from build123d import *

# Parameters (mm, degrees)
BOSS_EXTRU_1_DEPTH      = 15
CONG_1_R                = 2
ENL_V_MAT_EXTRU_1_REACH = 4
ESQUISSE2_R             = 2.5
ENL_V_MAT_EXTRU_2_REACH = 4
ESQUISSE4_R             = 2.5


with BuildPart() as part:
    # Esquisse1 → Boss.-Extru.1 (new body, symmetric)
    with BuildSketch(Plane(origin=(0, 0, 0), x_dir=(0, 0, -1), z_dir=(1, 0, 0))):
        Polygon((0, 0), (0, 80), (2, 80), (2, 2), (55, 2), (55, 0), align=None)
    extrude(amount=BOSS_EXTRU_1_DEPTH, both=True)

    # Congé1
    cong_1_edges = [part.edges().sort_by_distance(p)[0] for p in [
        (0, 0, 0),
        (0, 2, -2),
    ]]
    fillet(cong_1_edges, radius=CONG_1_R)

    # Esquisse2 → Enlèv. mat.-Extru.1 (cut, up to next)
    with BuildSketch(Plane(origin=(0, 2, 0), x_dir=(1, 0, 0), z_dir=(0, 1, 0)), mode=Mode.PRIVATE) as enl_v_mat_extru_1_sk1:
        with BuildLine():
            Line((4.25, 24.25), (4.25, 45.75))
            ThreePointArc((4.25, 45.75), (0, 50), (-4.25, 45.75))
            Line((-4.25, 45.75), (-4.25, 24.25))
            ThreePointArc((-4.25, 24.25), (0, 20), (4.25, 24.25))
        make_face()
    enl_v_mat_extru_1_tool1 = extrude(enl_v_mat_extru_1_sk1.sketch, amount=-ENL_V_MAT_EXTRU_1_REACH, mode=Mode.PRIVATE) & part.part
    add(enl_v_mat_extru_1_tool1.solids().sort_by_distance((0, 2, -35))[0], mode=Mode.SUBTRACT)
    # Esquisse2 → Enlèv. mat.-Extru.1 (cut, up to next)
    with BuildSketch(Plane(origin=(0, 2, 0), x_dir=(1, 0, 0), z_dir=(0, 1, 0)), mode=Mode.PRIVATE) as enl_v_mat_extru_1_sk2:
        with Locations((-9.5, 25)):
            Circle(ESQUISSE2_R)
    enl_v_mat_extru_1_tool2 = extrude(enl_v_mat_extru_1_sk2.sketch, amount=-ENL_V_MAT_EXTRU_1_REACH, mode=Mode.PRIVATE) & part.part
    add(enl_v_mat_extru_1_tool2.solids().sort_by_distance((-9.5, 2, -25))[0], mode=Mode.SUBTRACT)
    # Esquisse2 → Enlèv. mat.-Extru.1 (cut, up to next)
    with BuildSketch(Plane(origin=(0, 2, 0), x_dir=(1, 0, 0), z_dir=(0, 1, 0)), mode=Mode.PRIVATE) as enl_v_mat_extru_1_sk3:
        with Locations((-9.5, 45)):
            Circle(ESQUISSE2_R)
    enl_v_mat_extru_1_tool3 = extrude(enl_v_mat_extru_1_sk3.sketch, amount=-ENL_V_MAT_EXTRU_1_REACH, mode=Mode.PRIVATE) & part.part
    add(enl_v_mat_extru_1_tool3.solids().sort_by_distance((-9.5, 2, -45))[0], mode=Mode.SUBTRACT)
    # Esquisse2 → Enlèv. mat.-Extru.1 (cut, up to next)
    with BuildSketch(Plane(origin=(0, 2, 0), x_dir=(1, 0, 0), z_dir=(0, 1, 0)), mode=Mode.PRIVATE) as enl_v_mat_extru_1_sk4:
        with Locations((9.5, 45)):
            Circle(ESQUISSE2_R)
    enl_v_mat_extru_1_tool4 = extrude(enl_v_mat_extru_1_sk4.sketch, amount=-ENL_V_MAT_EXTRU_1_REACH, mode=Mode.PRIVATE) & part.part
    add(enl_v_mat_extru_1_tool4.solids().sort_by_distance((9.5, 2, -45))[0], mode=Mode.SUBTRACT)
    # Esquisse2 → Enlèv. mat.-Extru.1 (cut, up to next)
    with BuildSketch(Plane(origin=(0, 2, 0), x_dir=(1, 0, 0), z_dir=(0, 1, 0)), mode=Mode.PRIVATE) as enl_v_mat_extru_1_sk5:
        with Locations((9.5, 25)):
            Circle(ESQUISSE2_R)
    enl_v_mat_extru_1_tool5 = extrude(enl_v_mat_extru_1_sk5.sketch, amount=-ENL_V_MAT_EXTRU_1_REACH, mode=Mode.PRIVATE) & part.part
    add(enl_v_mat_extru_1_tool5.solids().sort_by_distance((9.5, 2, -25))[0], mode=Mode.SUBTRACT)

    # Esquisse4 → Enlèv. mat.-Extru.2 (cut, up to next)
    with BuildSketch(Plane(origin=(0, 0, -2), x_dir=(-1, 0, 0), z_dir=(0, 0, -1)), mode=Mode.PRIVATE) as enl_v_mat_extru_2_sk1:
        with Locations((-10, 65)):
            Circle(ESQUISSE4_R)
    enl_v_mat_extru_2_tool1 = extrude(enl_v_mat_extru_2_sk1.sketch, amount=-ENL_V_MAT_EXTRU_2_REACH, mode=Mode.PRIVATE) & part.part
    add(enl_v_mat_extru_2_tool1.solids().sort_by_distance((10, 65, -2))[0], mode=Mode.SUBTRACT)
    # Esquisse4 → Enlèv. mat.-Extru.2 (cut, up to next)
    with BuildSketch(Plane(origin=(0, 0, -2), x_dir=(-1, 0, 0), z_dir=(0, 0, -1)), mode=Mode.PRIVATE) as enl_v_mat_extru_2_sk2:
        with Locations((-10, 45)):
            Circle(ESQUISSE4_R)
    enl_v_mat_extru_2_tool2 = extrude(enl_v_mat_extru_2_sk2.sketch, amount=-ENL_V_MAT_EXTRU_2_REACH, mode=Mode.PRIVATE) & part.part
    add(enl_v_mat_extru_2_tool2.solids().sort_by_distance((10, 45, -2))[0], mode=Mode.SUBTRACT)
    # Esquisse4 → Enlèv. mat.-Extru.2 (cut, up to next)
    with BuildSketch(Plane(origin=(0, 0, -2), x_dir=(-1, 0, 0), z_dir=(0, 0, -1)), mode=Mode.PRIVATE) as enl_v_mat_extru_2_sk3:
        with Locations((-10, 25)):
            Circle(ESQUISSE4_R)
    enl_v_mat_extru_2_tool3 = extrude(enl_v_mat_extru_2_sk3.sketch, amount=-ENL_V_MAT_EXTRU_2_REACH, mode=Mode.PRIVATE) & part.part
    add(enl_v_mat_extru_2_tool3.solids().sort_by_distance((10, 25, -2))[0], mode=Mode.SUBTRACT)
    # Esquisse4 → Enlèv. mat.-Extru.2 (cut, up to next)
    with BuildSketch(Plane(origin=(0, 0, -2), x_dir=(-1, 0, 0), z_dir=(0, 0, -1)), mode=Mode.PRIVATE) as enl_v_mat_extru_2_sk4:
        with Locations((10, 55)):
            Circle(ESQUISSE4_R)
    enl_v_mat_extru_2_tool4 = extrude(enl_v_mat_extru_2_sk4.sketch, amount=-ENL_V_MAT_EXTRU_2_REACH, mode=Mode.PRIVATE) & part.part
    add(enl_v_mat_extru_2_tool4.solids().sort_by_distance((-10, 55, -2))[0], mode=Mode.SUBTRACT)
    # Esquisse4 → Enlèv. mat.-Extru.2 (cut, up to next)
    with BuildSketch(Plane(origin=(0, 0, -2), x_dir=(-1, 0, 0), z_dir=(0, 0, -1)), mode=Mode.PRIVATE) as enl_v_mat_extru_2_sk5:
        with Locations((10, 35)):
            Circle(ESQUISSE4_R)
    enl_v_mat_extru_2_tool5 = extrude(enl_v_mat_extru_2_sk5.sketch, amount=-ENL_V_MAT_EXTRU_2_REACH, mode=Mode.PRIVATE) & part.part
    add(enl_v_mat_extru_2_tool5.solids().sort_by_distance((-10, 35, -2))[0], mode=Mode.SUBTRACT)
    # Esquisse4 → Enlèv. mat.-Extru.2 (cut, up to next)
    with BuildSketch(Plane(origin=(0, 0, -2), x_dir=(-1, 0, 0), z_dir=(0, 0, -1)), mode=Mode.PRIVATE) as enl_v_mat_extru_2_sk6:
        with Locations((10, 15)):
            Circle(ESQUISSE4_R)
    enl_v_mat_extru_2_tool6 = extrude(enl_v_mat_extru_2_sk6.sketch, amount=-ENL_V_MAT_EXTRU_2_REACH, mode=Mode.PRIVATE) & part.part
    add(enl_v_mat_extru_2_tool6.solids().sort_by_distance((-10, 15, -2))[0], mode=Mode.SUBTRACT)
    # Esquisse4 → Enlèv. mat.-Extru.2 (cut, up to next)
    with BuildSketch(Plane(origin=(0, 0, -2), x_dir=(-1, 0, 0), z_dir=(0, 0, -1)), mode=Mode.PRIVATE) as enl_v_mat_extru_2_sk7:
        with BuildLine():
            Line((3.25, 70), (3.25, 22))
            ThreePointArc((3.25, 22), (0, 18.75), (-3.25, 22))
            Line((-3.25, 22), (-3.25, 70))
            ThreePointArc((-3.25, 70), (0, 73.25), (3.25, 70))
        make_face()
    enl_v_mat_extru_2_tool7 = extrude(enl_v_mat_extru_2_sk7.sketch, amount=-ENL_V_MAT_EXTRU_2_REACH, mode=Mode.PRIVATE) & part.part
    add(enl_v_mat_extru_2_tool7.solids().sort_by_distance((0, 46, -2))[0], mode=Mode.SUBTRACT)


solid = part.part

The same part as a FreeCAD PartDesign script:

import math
import FreeCAD as App
import Part
import Sketcher


def edges_at(feature, points):
    """Names of the edges that pass closest to the given points."""
    edges = feature.Shape.Edges
    near = lambda p: min(range(len(edges)), key=lambda i: edges[i].distToShape(Part.Vertex(*p))[0])
    return sorted({f"Edge{near(p) + 1}" for p in points})

doc = App.newDocument("Part")
params = doc.addObject("Spreadsheet::Sheet", "Params")
for row, (alias, value) in enumerate([
    ("sketch1_width", "80 mm"),
    ("sketch1_width2", "2 mm"),
    ("sketch1_height", "55 mm"),
    ("pad1_length", "30 mm"),
    ("fillet_radius", "2 mm"),
    ("sketch2_radius", "4.25 mm"),
    ("sketch2_height", "21.5 mm"),
    ("sketch3_diameter", "5 mm"),
    ("sketch4_diameter", "5 mm"),
    ("sketch5_diameter", "5 mm"),
    ("sketch6_diameter", "5 mm"),
    ("sketch7_diameter", "5 mm"),
    ("sketch8_diameter", "5 mm"),
    ("sketch9_diameter", "5 mm"),
    ("sketch10_diameter", "5 mm"),
    ("sketch11_diameter", "5 mm"),
    ("sketch12_diameter", "5 mm"),
    ("sketch13_height", "48 mm"),
    ("sketch13_radius", "3.25 mm"),
], start=1):
    params.set(f"A{row}", alias)
    params.set(f"B{row}", "=" + value)
    params.setAlias(f"B{row}", alias)

body = doc.addObject("PartDesign::Body", "Body")

# Sketch on YZ plane
sketch1 = doc.addObject("Sketcher::SketchObject", "Sketch")
body.addObject(sketch1)
sketch1.AttachmentSupport = (doc.YZ_Plane, [""])
sketch1.MapMode = "FlatFace"
sketch1.addGeometry([
    Part.LineSegment(App.Vector(80, 0, 0), App.Vector(0, 0, 0)),  # 0
    Part.LineSegment(App.Vector(0, 0, 0), App.Vector(0, -55, 0)),  # 1
    Part.LineSegment(App.Vector(0, -55, 0), App.Vector(2, -55, 0)),  # 2
    Part.LineSegment(App.Vector(2, -55, 0), App.Vector(2, -2, 0)),  # 3
    Part.LineSegment(App.Vector(2, -2, 0), App.Vector(80, -2, 0)),  # 4
    Part.LineSegment(App.Vector(80, -2, 0), App.Vector(80, 0, 0)),  # 5
], False)
sketch1.addConstraint([
    Sketcher.Constraint("Coincident", 0, 2, 1, 1),
    Sketcher.Constraint("Coincident", 1, 2, 2, 1),
    Sketcher.Constraint("Coincident", 2, 2, 3, 1),
    Sketcher.Constraint("Coincident", 3, 2, 4, 1),
    Sketcher.Constraint("Coincident", 4, 2, 5, 1),
    Sketcher.Constraint("Coincident", 5, 2, 0, 1),
    Sketcher.Constraint("Horizontal", 0),
    Sketcher.Constraint("Vertical", 1),
    Sketcher.Constraint("Horizontal", 2),
    Sketcher.Constraint("Vertical", 3),
    Sketcher.Constraint("Horizontal", 4),
    Sketcher.Constraint("Vertical", 5),
    Sketcher.Constraint("Coincident", 0, 2, -1, 1),
    Sketcher.Constraint("Equal", 2, 5),
    Sketcher.Constraint("DistanceX", 0, 2, 0, 1, 80.0),
    Sketcher.Constraint("DistanceX", 2, 1, 2, 2, 2.0),
    Sketcher.Constraint("DistanceY", 1, 2, 1, 1, 55.0),
])
sketch1.setExpression("Constraints[14]", "Params.sketch1_width")
sketch1.setExpression("Constraints[15]", "Params.sketch1_width2")
sketch1.setExpression("Constraints[16]", "Params.sketch1_height")
pad1 = doc.addObject("PartDesign::Pad", "Pad")
body.addObject(pad1)
pad1.Profile = sketch1
pad1.setExpression("Length", "Params.pad1_length")
pad1.Midplane = True
doc.recompute()

fillet = doc.addObject("PartDesign::Fillet", "Fillet")
body.addObject(fillet)
fillet.Base = (pad1, edges_at(pad1, [(0, 0, 0), (0, 2, -2)]))
fillet.setExpression("Radius", "Params.fillet_radius")

# Sketch on XZ plane
sketch2 = doc.addObject("Sketcher::SketchObject", "Sketch001")
body.addObject(sketch2)
sketch2.AttachmentSupport = (doc.XZ_Plane, [""])
sketch2.MapMode = "FlatFace"
sketch2.AttachmentOffset = App.Placement(App.Vector(0, 0, -2), App.Rotation())
sketch2.addGeometry([
    Part.LineSegment(App.Vector(4.25, -24.25, 0), App.Vector(4.25, -45.75, 0)),
    Part.ArcOfCircle(Part.Circle(App.Vector(0, -45.75, 0), App.Vector(0, 0, 1), 4.25), math.radians(180), math.radians(360)),
    Part.LineSegment(App.Vector(-4.25, -45.75, 0), App.Vector(-4.25, -24.25, 0)),
    Part.ArcOfCircle(Part.Circle(App.Vector(0, -24.25, 0), App.Vector(0, 0, 1), 4.25), math.radians(0), math.radians(180)),
], False)
sketch2.addConstraint([
    Sketcher.Constraint("Tangent", 0, 2, 1, 2),
    Sketcher.Constraint("Tangent", 1, 1, 2, 1),
    Sketcher.Constraint("Tangent", 2, 2, 3, 2),
    Sketcher.Constraint("Tangent", 3, 1, 0, 1),
    Sketcher.Constraint("Vertical", 0),
    Sketcher.Constraint("Vertical", 2),
    Sketcher.Constraint("PointOnObject", 1, 3, -2),
    Sketcher.Constraint("Radius", 1, 4.25),
    Sketcher.Constraint("DistanceY", 0, 2, 0, 1, 21.5),
    Sketcher.Constraint("DistanceY", 1, 3, -1, 1, 45.75),
])
sketch2.setExpression("Constraints[7]", "Params.sketch2_radius")
sketch2.setExpression("Constraints[8]", "Params.sketch2_height")
pocket1 = doc.addObject("PartDesign::Pocket", "Pocket")
body.addObject(pocket1)
pocket1.Profile = sketch2
pocket1.Type = "UpToFirst"
pocket1.Reversed = True

# Sketch on XZ plane
sketch3 = doc.addObject("Sketcher::SketchObject", "Sketch002")
body.addObject(sketch3)
sketch3.AttachmentSupport = (doc.XZ_Plane, [""])
sketch3.MapMode = "FlatFace"
sketch3.AttachmentOffset = App.Placement(App.Vector(0, 0, -2), App.Rotation())
sketch3.addGeometry(Part.Circle(App.Vector(-9.5, -25, 0), App.Vector(0, 0, 1), 2.5), False)
sketch3.addConstraint([
    Sketcher.Constraint("Diameter", 0, 5.0),
    Sketcher.Constraint("DistanceY", 0, 3, -1, 1, 25.0),
    Sketcher.Constraint("DistanceX", 0, 3, -1, 1, 9.5),
])
sketch3.setExpression("Constraints[0]", "Params.sketch3_diameter")
pocket2 = doc.addObject("PartDesign::Pocket", "Pocket001")
body.addObject(pocket2)
pocket2.Profile = sketch3
pocket2.Type = "UpToFirst"
pocket2.Reversed = True

# Sketch on XZ plane
sketch4 = doc.addObject("Sketcher::SketchObject", "Sketch003")
body.addObject(sketch4)
sketch4.AttachmentSupport = (doc.XZ_Plane, [""])
sketch4.MapMode = "FlatFace"
sketch4.AttachmentOffset = App.Placement(App.Vector(0, 0, -2), App.Rotation())
sketch4.addGeometry(Part.Circle(App.Vector(-9.5, -45, 0), App.Vector(0, 0, 1), 2.5), False)
sketch4.addConstraint([
    Sketcher.Constraint("Diameter", 0, 5.0),
    Sketcher.Constraint("DistanceY", 0, 3, -1, 1, 45.0),
    Sketcher.Constraint("DistanceX", 0, 3, -1, 1, 9.5),
])
sketch4.setExpression("Constraints[0]", "Params.sketch4_diameter")
pocket3 = doc.addObject("PartDesign::Pocket", "Pocket002")
body.addObject(pocket3)
pocket3.Profile = sketch4
pocket3.Type = "UpToFirst"
pocket3.Reversed = True

# Sketch on XZ plane
sketch5 = doc.addObject("Sketcher::SketchObject", "Sketch004")
body.addObject(sketch5)
sketch5.AttachmentSupport = (doc.XZ_Plane, [""])
sketch5.MapMode = "FlatFace"
sketch5.AttachmentOffset = App.Placement(App.Vector(0, 0, -2), App.Rotation())
sketch5.addGeometry(Part.Circle(App.Vector(9.5, -45, 0), App.Vector(0, 0, 1), 2.5), False)
sketch5.addConstraint([
    Sketcher.Constraint("Diameter", 0, 5.0),
    Sketcher.Constraint("DistanceY", 0, 3, -1, 1, 45.0),
    Sketcher.Constraint("DistanceX", -1, 1, 0, 3, 9.5),
])
sketch5.setExpression("Constraints[0]", "Params.sketch5_diameter")
pocket4 = doc.addObject("PartDesign::Pocket", "Pocket003")
body.addObject(pocket4)
pocket4.Profile = sketch5
pocket4.Type = "UpToFirst"
pocket4.Reversed = True

# Sketch on XZ plane
sketch6 = doc.addObject("Sketcher::SketchObject", "Sketch005")
body.addObject(sketch6)
sketch6.AttachmentSupport = (doc.XZ_Plane, [""])
sketch6.MapMode = "FlatFace"
sketch6.AttachmentOffset = App.Placement(App.Vector(0, 0, -2), App.Rotation())
sketch6.addGeometry(Part.Circle(App.Vector(9.5, -25, 0), App.Vector(0, 0, 1), 2.5), False)
sketch6.addConstraint([
    Sketcher.Constraint("Diameter", 0, 5.0),
    Sketcher.Constraint("DistanceY", 0, 3, -1, 1, 25.0),
    Sketcher.Constraint("DistanceX", -1, 1, 0, 3, 9.5),
])
sketch6.setExpression("Constraints[0]", "Params.sketch6_diameter")
pocket5 = doc.addObject("PartDesign::Pocket", "Pocket004")
body.addObject(pocket5)
pocket5.Profile = sketch6
pocket5.Type = "UpToFirst"
pocket5.Reversed = True

# Sketch on XY plane
sketch7 = doc.addObject("Sketcher::SketchObject", "Sketch006")
body.addObject(sketch7)
sketch7.AttachmentSupport = (doc.XY_Plane, [""])
sketch7.MapMode = "FlatFace"
sketch7.AttachmentOffset = App.Placement(App.Vector(0, 0, -2), App.Rotation())
sketch7.addGeometry(Part.Circle(App.Vector(10, 65, 0), App.Vector(0, 0, 1), 2.5), False)
sketch7.addConstraint([
    Sketcher.Constraint("Diameter", 0, 5.0),
    Sketcher.Constraint("DistanceX", -1, 1, 0, 3, 10.0),
    Sketcher.Constraint("DistanceY", -1, 1, 0, 3, 65.0),
])
sketch7.setExpression("Constraints[0]", "Params.sketch7_diameter")
pocket6 = doc.addObject("PartDesign::Pocket", "Pocket005")
body.addObject(pocket6)
pocket6.Profile = sketch7
pocket6.Type = "UpToFirst"
pocket6.Reversed = True

# Sketch on XY plane
sketch8 = doc.addObject("Sketcher::SketchObject", "Sketch007")
body.addObject(sketch8)
sketch8.AttachmentSupport = (doc.XY_Plane, [""])
sketch8.MapMode = "FlatFace"
sketch8.AttachmentOffset = App.Placement(App.Vector(0, 0, -2), App.Rotation())
sketch8.addGeometry(Part.Circle(App.Vector(10, 45, 0), App.Vector(0, 0, 1), 2.5), False)
sketch8.addConstraint([
    Sketcher.Constraint("Diameter", 0, 5.0),
    Sketcher.Constraint("DistanceX", -1, 1, 0, 3, 10.0),
    Sketcher.Constraint("DistanceY", -1, 1, 0, 3, 45.0),
])
sketch8.setExpression("Constraints[0]", "Params.sketch8_diameter")
pocket7 = doc.addObject("PartDesign::Pocket", "Pocket006")
body.addObject(pocket7)
pocket7.Profile = sketch8
pocket7.Type = "UpToFirst"
pocket7.Reversed = True

# Sketch on XY plane
sketch9 = doc.addObject("Sketcher::SketchObject", "Sketch008")
body.addObject(sketch9)
sketch9.AttachmentSupport = (doc.XY_Plane, [""])
sketch9.MapMode = "FlatFace"
sketch9.AttachmentOffset = App.Placement(App.Vector(0, 0, -2), App.Rotation())
sketch9.addGeometry(Part.Circle(App.Vector(10, 25, 0), App.Vector(0, 0, 1), 2.5), False)
sketch9.addConstraint([
    Sketcher.Constraint("Diameter", 0, 5.0),
    Sketcher.Constraint("DistanceX", -1, 1, 0, 3, 10.0),
    Sketcher.Constraint("DistanceY", -1, 1, 0, 3, 25.0),
])
sketch9.setExpression("Constraints[0]", "Params.sketch9_diameter")
pocket8 = doc.addObject("PartDesign::Pocket", "Pocket007")
body.addObject(pocket8)
pocket8.Profile = sketch9
pocket8.Type = "UpToFirst"
pocket8.Reversed = True

# Sketch on XY plane
sketch10 = doc.addObject("Sketcher::SketchObject", "Sketch009")
body.addObject(sketch10)
sketch10.AttachmentSupport = (doc.XY_Plane, [""])
sketch10.MapMode = "FlatFace"
sketch10.AttachmentOffset = App.Placement(App.Vector(0, 0, -2), App.Rotation())
sketch10.addGeometry(Part.Circle(App.Vector(-10, 55, 0), App.Vector(0, 0, 1), 2.5), False)
sketch10.addConstraint([
    Sketcher.Constraint("Diameter", 0, 5.0),
    Sketcher.Constraint("DistanceX", 0, 3, -1, 1, 10.0),
    Sketcher.Constraint("DistanceY", -1, 1, 0, 3, 55.0),
])
sketch10.setExpression("Constraints[0]", "Params.sketch10_diameter")
pocket9 = doc.addObject("PartDesign::Pocket", "Pocket008")
body.addObject(pocket9)
pocket9.Profile = sketch10
pocket9.Type = "UpToFirst"
pocket9.Reversed = True

# Sketch on XY plane
sketch11 = doc.addObject("Sketcher::SketchObject", "Sketch010")
body.addObject(sketch11)
sketch11.AttachmentSupport = (doc.XY_Plane, [""])
sketch11.MapMode = "FlatFace"
sketch11.AttachmentOffset = App.Placement(App.Vector(0, 0, -2), App.Rotation())
sketch11.addGeometry(Part.Circle(App.Vector(-10, 35, 0), App.Vector(0, 0, 1), 2.5), False)
sketch11.addConstraint([
    Sketcher.Constraint("Diameter", 0, 5.0),
    Sketcher.Constraint("DistanceX", 0, 3, -1, 1, 10.0),
    Sketcher.Constraint("DistanceY", -1, 1, 0, 3, 35.0),
])
sketch11.setExpression("Constraints[0]", "Params.sketch11_diameter")
pocket10 = doc.addObject("PartDesign::Pocket", "Pocket009")
body.addObject(pocket10)
pocket10.Profile = sketch11
pocket10.Type = "UpToFirst"
pocket10.Reversed = True

# Sketch on XY plane
sketch12 = doc.addObject("Sketcher::SketchObject", "Sketch011")
body.addObject(sketch12)
sketch12.AttachmentSupport = (doc.XY_Plane, [""])
sketch12.MapMode = "FlatFace"
sketch12.AttachmentOffset = App.Placement(App.Vector(0, 0, -2), App.Rotation())
sketch12.addGeometry(Part.Circle(App.Vector(-10, 15, 0), App.Vector(0, 0, 1), 2.5), False)
sketch12.addConstraint([
    Sketcher.Constraint("Diameter", 0, 5.0),
    Sketcher.Constraint("DistanceX", 0, 3, -1, 1, 10.0),
    Sketcher.Constraint("DistanceY", -1, 1, 0, 3, 15.0),
])
sketch12.setExpression("Constraints[0]", "Params.sketch12_diameter")
pocket11 = doc.addObject("PartDesign::Pocket", "Pocket010")
body.addObject(pocket11)
pocket11.Profile = sketch12
pocket11.Type = "UpToFirst"
pocket11.Reversed = True

# Sketch on XY plane
sketch13 = doc.addObject("Sketcher::SketchObject", "Sketch012")
body.addObject(sketch13)
sketch13.AttachmentSupport = (doc.XY_Plane, [""])
sketch13.MapMode = "FlatFace"
sketch13.AttachmentOffset = App.Placement(App.Vector(0, 0, -2), App.Rotation())
sketch13.addGeometry([
    Part.LineSegment(App.Vector(-3.25, 22, 0), App.Vector(-3.25, 70, 0)),
    Part.ArcOfCircle(Part.Circle(App.Vector(0, 70, 0), App.Vector(0, 0, 1), 3.25), math.radians(0), math.radians(180)),
    Part.LineSegment(App.Vector(3.25, 70, 0), App.Vector(3.25, 22, 0)),
    Part.ArcOfCircle(Part.Circle(App.Vector(0, 22, 0), App.Vector(0, 0, 1), 3.25), math.radians(180), math.radians(360)),
], False)
sketch13.addConstraint([
    Sketcher.Constraint("Tangent", 0, 2, 1, 2),
    Sketcher.Constraint("Tangent", 1, 1, 2, 1),
    Sketcher.Constraint("Tangent", 2, 2, 3, 2),
    Sketcher.Constraint("Tangent", 3, 1, 0, 1),
    Sketcher.Constraint("Vertical", 0),
    Sketcher.Constraint("Vertical", 2),
    Sketcher.Constraint("PointOnObject", 1, 3, -2),
    Sketcher.Constraint("DistanceY", 0, 1, 0, 2, 48.0),
    Sketcher.Constraint("Radius", 1, 3.25),
    Sketcher.Constraint("DistanceY", -1, 1, 1, 3, 70.0),
])
sketch13.setExpression("Constraints[7]", "Params.sketch13_height")
sketch13.setExpression("Constraints[8]", "Params.sketch13_radius")
pocket12 = doc.addObject("PartDesign::Pocket", "Pocket011")
body.addObject(pocket12)
pocket12.Profile = sketch13
pocket12.Type = "UpToFirst"
pocket12.Reversed = True

doc.recompute()
